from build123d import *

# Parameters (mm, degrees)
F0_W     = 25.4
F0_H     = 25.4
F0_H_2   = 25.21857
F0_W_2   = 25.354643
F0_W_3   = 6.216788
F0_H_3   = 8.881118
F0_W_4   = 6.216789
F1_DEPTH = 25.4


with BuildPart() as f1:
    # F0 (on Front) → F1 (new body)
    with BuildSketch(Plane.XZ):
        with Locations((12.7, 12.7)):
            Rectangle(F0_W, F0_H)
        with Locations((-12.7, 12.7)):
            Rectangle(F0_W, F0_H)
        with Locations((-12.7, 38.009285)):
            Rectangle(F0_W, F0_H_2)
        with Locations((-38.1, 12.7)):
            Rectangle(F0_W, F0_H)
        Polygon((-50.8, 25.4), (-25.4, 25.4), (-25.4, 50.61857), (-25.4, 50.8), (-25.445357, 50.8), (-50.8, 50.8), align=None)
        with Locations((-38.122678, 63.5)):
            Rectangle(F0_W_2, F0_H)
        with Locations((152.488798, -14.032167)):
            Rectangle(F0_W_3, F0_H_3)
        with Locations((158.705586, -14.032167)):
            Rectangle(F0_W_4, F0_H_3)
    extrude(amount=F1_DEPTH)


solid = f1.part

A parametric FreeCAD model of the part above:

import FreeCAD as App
import Part
import Sketcher

V = App.Vector
Q = App.Units.Quantity

doc = App.newDocument("Part")
params = doc.addObject("Spreadsheet::Sheet", "Params")
for row, (alias, value) in enumerate([
    ("sketch1_width", "1 in"),
    ("sketch1_width2", "1 in"),
    ("sketch1_width3", "3 in"),
    ("sketch1_height", "1 in"),
    ("sketch1_height2", "1 in"),
    ("pad1_length", "1 in"),
], start=1):
    params.set(f"A{row}", alias)
    params.set(f"B{row}", "=" + value)
    params.setAlias(f"B{row}", alias)

body = doc.addObject("PartDesign::Body", "Body")
body.AllowCompound = True

# Sketch on XZ plane
sketch1 = body.newObject("Sketcher::SketchObject", "Sketch")
sketch1.AttachmentSupport = (doc.getObject("XZ_Plane"), [""])
sketch1.MapMode = "FlatFace"
sketch1.addGeometry(Part.LineSegment(V(25.4, 0, 0), V(25.4, 25.4, 0)), False)
sketch1.addGeometry(Part.LineSegment(V(25.4, 25.4, 0), V(0, 25.4, 0)), False)
sketch1.addGeometry(Part.LineSegment(V(0, 25.4, 0), V(0, 50.61857, 0)), False)
sketch1.addGeometry(Part.LineSegment(V(0, 50.61857, 0), V(-25.4, 50.61857, 0)), False)
sketch1.addGeometry(Part.LineSegment(V(-25.4, 50.61857, 0), V(-25.4, 50.8, 0)), False)
sketch1.addGeometry(Part.LineSegment(V(-25.4, 50.8, 0), V(-25.445356, 50.8, 0)), False)
sketch1.addGeometry(Part.LineSegment(V(-25.445356, 50.8, 0), V(-25.445356, 76.2, 0)), False)
sketch1.addGeometry(Part.LineSegment(V(-25.445356, 76.2, 0), V(-50.799999, 76.2, 0)), False)
sketch1.addGeometry(Part.LineSegment(V(-50.799999, 76.2, 0), V(-50.799999, 50.8, 0)), False)
sketch1.addGeometry(Part.LineSegment(V(-50.8, 50.8, 0), V(-50.799999, 50.8, 0)), False)
sketch1.addGeometry(Part.LineSegment(V(-50.8, 50.8, 0), V(-50.8, 0, 0)), False)
sketch1.addGeometry(Part.LineSegment(V(-50.8, 0, 0), V(25.4, 0, 0)), False)
sketch1.addGeometry(Part.LineSegment(V(149.380404, -9.591608, 0), V(149.380404, -18.472726, 0)), False)
sketch1.addGeometry(Part.LineSegment(V(149.380404, -18.472726, 0), V(161.813981, -18.472726, 0)), False)
sketch1.addGeometry(Part.LineSegment(V(161.813981, -18.472726, 0), V(161.813981, -9.591608, 0)), False)
sketch1.addGeometry(Part.LineSegment(V(161.813981, -9.591608, 0), V(149.380404, -9.591608, 0)), False)
sketch1.addConstraint(Sketcher.Constraint("Coincident", 0, 2, 1, 1))
sketch1.addConstraint(Sketcher.Constraint("Coincident", 1, 2, 2, 1))
sketch1.addConstraint(Sketcher.Constraint("Coincident", 2, 2, 3, 1))
sketch1.addConstraint(Sketcher.Constraint("Coincident", 3, 2, 4, 1))
sketch1.addConstraint(Sketcher.Constraint("Coincident", 4, 2, 5, 1))
sketch1.addConstraint(Sketcher.Constraint("Coincident", 5, 2, 6, 1))
sketch1.addConstraint(Sketcher.Constraint("Coincident", 6, 2, 7, 1))
sketch1.addConstraint(Sketcher.Constraint("Coincident", 7, 2, 8, 1))
sketch1.addConstraint(Sketcher.Constraint("Coincident", 8, 2, 9, 1))
sketch1.addConstraint(Sketcher.Constraint("Coincident", 9, 2, 10, 1))
sketch1.addConstraint(Sketcher.Constraint("Coincident", 10, 2, 11, 1))
sketch1.addConstraint(Sketcher.Constraint("Coincident", 11, 2, 0, 1))
sketch1.addConstraint(Sketcher.Constraint("Coincident", 12, 2, 13, 1))
sketch1.addConstraint(Sketcher.Constraint("Coincident", 13, 2, 14, 1))
sketch1.addConstraint(Sketcher.Constraint("Coincident", 14, 2, 15, 1))
sketch1.addConstraint(Sketcher.Constraint("Coincident", 15, 2, 12, 1))
sketch1.addConstraint(Sketcher.Constraint("Vertical", 0))
sketch1.addConstraint(Sketcher.Constraint("Horizontal", 1))
sketch1.addConstraint(Sketcher.Constraint("Vertical", 2))
sketch1.addConstraint(Sketcher.Constraint("Horizontal", 3))
sketch1.addConstraint(Sketcher.Constraint("Vertical", 4))
sketch1.addConstraint(Sketcher.Constraint("Horizontal", 5))
sketch1.addConstraint(Sketcher.Constraint("Vertical", 6))
sketch1.addConstraint(Sketcher.Constraint("Horizontal", 7))
sketch1.addConstraint(Sketcher.Constraint("Vertical", 8))
sketch1.addConstraint(Sketcher.Constraint("Horizontal", 9))
sketch1.addConstraint(Sketcher.Constraint("Vertical", 10))
sketch1.addConstraint(Sketcher.Constraint("Horizontal", 11))
sketch1.addConstraint(Sketcher.Constraint("Vertical", 12))
sketch1.addConstraint(Sketcher.Constraint("Horizontal", 13))
sketch1.addConstraint(Sketcher.Constraint("Vertical", 14))
sketch1.addConstraint(Sketcher.Constraint("Horizontal", 15))
sketch1.addConstraint(Sketcher.Constraint("PointOnObject", 1, 2, -2))
sketch1.addConstraint(Sketcher.Constraint("PointOnObject", 10, 2, -1))
sketch1.addConstraint(Sketcher.Constraint("DistanceX", 1, 2, 1, 1, Q("1 in")))
sketch1.addConstraint(Sketcher.Constraint("DistanceX", 3, 2, 3, 1, Q("1 in")))
sketch1.addConstraint(Sketcher.Constraint("DistanceX", 11, 1, 11, 2, Q("3 in")))
sketch1.addConstraint(Sketcher.Constraint("DistanceY", 0, 1, 0, 2, Q("1 in")))
sketch1.addConstraint(Sketcher.Constraint("DistanceY", 6, 1, 6, 2, Q("1 in")))
sketch1.addConstraint(Sketcher.Constraint("DistanceY", 8, 2, 8, 1, Q("1 in")))
sketch1.addConstraint(Sketcher.Constraint("DistanceY", 10, 2, 10, 1, Q("2 in")))
sketch1.addConstraint(Sketcher.Constraint("DistanceX", 7, 2, -1, 1, Q("2 in")))
sketch1.addConstraint(Sketcher.Constraint("DistanceY", 2, 1, 2, 2, 25.21857))
sketch1.addConstraint(Sketcher.Constraint("DistanceY", 12, 2, 12, 1, 8.881118))
sketch1.addConstraint(Sketcher.Constraint("DistanceX", 5, 2, 5, 1, 0.045357))
sketch1.addConstraint(Sketcher.Constraint("DistanceX", 13, 1, 13, 2, 12.433577))
sketch1.addConstraint(Sketcher.Constraint("DistanceX", -1, 1, 13, 2, 161.813981))
sketch1.addConstraint(Sketcher.Constraint("DistanceY", 14, 2, -1, 1, 9.591608))
sketch1.setExpression("Constraints[34]", "Params.sketch1_width")
sketch1.setExpression("Constraints[35]", "Params.sketch1_width2")
sketch1.setExpression("Constraints[36]", "Params.sketch1_width3")
sketch1.setExpression("Constraints[37]", "Params.sketch1_height")
sketch1.setExpression("Constraints[38]", "Params.sketch1_height2")
pad1 = body.newObject("PartDesign::Pad", "Pad")
pad1.Profile = sketch1
pad1.setExpression("Length", "Params.pad1_length")

doc.recompute()
